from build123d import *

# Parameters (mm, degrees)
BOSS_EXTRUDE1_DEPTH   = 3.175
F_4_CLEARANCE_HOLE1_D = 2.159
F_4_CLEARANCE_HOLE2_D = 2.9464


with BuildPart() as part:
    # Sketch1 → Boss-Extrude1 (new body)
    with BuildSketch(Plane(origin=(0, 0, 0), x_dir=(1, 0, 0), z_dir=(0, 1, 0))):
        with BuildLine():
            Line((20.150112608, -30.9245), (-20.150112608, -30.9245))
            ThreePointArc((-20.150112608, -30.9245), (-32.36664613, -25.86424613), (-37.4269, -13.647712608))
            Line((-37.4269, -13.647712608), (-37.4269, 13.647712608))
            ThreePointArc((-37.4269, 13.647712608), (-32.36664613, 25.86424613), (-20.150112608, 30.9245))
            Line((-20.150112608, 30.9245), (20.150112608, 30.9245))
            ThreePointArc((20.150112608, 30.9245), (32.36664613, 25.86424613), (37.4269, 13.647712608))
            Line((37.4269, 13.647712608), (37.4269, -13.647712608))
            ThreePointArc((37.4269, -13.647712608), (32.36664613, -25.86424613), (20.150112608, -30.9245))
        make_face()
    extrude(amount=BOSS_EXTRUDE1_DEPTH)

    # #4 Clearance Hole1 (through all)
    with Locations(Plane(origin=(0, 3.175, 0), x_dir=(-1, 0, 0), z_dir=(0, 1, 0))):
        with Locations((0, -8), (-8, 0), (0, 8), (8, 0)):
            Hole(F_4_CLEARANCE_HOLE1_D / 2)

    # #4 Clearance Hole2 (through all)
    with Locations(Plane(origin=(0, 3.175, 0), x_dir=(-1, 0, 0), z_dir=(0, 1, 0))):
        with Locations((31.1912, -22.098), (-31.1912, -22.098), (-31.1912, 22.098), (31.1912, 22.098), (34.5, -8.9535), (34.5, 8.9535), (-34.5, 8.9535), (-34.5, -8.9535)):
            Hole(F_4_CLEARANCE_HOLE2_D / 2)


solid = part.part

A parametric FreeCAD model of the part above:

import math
import FreeCAD as App
import Part
import Sketcher
Q = App.Units.Quantity

doc = App.newDocument("Part")
body = doc.addObject("PartDesign::Body", "Body")

# Sketch on XZ plane
sketch1 = doc.addObject("Sketcher::SketchObject", "Sketch")
body.addObject(sketch1)
sketch1.AttachmentSupport = (doc.XZ_Plane, [""])
sketch1.MapMode = "FlatFace"
sketch1.addGeometry([
    Part.LineSegment(App.Vector(-20, 31, 0), App.Vector(20, 31, 0)),  # 0
    Part.ArcOfCircle(Part.Circle(App.Vector(20, 14, 0), App.Vector(0, 0, 1), 17), math.radians(0), math.radians(90)),  # 1
    Part.LineSegment(App.Vector(37, 14, 0), App.Vector(37, -14, 0)),  # 2
    Part.ArcOfCircle(Part.Circle(App.Vector(20, -14, 0), App.Vector(0, 0, 1), 17), math.radians(-90), math.radians(0)),  # 3
    Part.LineSegment(App.Vector(20, -31, 0), App.Vector(-20, -31, 0)),  # 4
    Part.ArcOfCircle(Part.Circle(App.Vector(-20, -14, 0), App.Vector(0, 0, 1), 17), math.radians(180), math.radians(270)),  # 5
    Part.LineSegment(App.Vector(-37, -14, 0), App.Vector(-37, 14, 0)),  # 6
    Part.ArcOfCircle(Part.Circle(App.Vector(-20, 14, 0), App.Vector(0, 0, 1), 17), math.radians(90), math.radians(180)),  # 7
], False)
sketch1.addConstraint([
    Sketcher.Constraint("Tangent", 0, 2, 1, 2),
    Sketcher.Constraint("Tangent", 1, 1, 2, 1),
    Sketcher.Constraint("Tangent", 2, 2, 3, 2),
    Sketcher.Constraint("Tangent", 3, 1, 4, 1),
    Sketcher.Constraint("Tangent", 4, 2, 5, 2),
    Sketcher.Constraint("Tangent", 5, 1, 6, 1),
    Sketcher.Constraint("Tangent", 6, 2, 7, 2),
    Sketcher.Constraint("Tangent", 7, 1, 0, 1),
    Sketcher.Constraint("Horizontal", 0),
    Sketcher.Constraint("Vertical", 2),
    Sketcher.Constraint("Horizontal", 4),
    Sketcher.Constraint("Vertical", 6),
    Sketcher.Constraint("Equal", 1, 3),
    Sketcher.Constraint("Equal", 3, 5),
    Sketcher.Constraint("Equal", 5, 7),
    Sketcher.Constraint("Symmetric", 1, 3, 5, 3, -1, 1),
    Sketcher.Constraint("DistanceY", -1, 1, 0, 2, Q("1.2175 in")),
    Sketcher.Constraint("DistanceX", -1, 1, 1, 1, Q("1.4735 in")),
    Sketcher.Constraint("Radius", 1, 17.276787),
])
pad1 = doc.addObject("PartDesign::Pad", "Pad")
body.addObject(pad1)
pad1.Profile = sketch1
pad1.Length = Q("0.125 in")
pad1.Reversed = True

# Sketch on XZ plane
sketch2 = doc.addObject("Sketcher::SketchObject", "Sketch001")
body.addObject(sketch2)
sketch2.AttachmentSupport = (doc.XZ_Plane, [""])
sketch2.MapMode = "FlatFace"
sketch2.AttachmentOffset = App.Placement(App.Vector(0, 0, -0.125 * 25.4), App.Rotation())
sketch2.addGeometry([
    Part.Circle(App.Vector(0, -8, 0), App.Vector(0, 0, 1), 1.1),
    Part.Circle(App.Vector(8, 0, 0), App.Vector(0, 0, 1), 1.1),
    Part.Circle(App.Vector(0, 8, 0), App.Vector(0, 0, 1), 1.1),
    Part.Circle(App.Vector(-8, 0, 0), App.Vector(0, 0, 1), 1.1),
], False)
sketch2.addConstraint([
    Sketcher.Constraint("Equal", 0, 1),
    Sketcher.Constraint("Equal", 1, 2),
    Sketcher.Constraint("Equal", 2, 3),
    Sketcher.Constraint("Symmetric", 0, 3, 2, 3, -1, 1),
    Sketcher.Constraint("Symmetric", 1, 3, 3, 3, -1, 1),
    Sketcher.Constraint("PointOnObject", 0, 3, -2),
    Sketcher.Constraint("PointOnObject", 1, 3, -1),
    Sketcher.Constraint("Diameter", 0, Q("0.085 in")),
    Sketcher.Constraint("DistanceY", 0, 3, -1, 1, 8.0),
    Sketcher.Constraint("DistanceX", -1, 1, 1, 3, 8.0),
])
doc.recompute()
hole = doc.addObject("PartDesign::Hole", "Hole")
body.addObject(hole)
hole.Profile = sketch2
hole.ThreadType = "None"
hole.Diameter = Q("0.085 in")
hole.DepthType = "ThroughAll"
hole.Reversed = True

# Sketch on XZ plane
sketch3 = doc.addObject("Sketcher::SketchObject", "Sketch002")
body.addObject(sketch3)
sketch3.AttachmentSupport = (doc.XZ_Plane, [""])
sketch3.MapMode = "FlatFace"
sketch3.AttachmentOffset = App.Placement(App.Vector(0, 0, -0.125 * 25.4), App.Rotation())
sketch3.addGeometry([
    Part.Circle(App.Vector(-31.2, -22.1, 0), App.Vector(0, 0, 1), 1.5),  # 0
    Part.Circle(App.Vector(31.2, -22.1, 0), App.Vector(0, 0, 1), 1.5),  # 1
    Part.Circle(App.Vector(31.2, 22.1, 0), App.Vector(0, 0, 1), 1.5),  # 2
    Part.Circle(App.Vector(-31.2, 22.1, 0), App.Vector(0, 0, 1), 1.5),  # 3
    Part.Circle(App.Vector(-34.5, -9, 0), App.Vector(0, 0, 1), 1.5),  # 4
    Part.Circle(App.Vector(-34.5, 9, 0), App.Vector(0, 0, 1), 1.5),  # 5
    Part.Circle(App.Vector(34.5, 9, 0), App.Vector(0, 0, 1), 1.5),  # 6
    Part.Circle(App.Vector(34.5, -9, 0), App.Vector(0, 0, 1), 1.5),  # 7
], False)
sketch3.addConstraint([
    Sketcher.Constraint("Equal", 0, 1),
    Sketcher.Constraint("Equal", 1, 2),
    Sketcher.Constraint("Equal", 2, 3),
    Sketcher.Constraint("Equal", 3, 4),
    Sketcher.Constraint("Equal", 4, 5),
    Sketcher.Constraint("Equal", 5, 6),
    Sketcher.Constraint("Equal", 6, 7),
    Sketcher.Constraint("Symmetric", 0, 3, 2, 3, -1, 1),
    Sketcher.Constraint("Symmetric", 1, 3, 3, 3, -1, 1),
    Sketcher.Constraint("Symmetric", 4, 3, 6, 3, -1, 1),
    Sketcher.Constraint("Symmetric", 5, 3, 7, 3, -1, 1),
    Sketcher.Constraint("Symmetric", 0, 3, 1, 3, -2),
    Sketcher.Constraint("Symmetric", 5, 3, 6, 3, -2),
    Sketcher.Constraint("Diameter", 0, Q("0.116 in")),
    Sketcher.Constraint("DistanceY", 0, 3, -1, 1, Q("0.87 in")),
    Sketcher.Constraint("DistanceX", 0, 3, -1, 1, Q("1.228 in")),
    Sketcher.Constraint("DistanceY", 4, 3, 5, 3, Q("0.705 in")),
    Sketcher.Constraint("DistanceX", 4, 3, -1, 1, 34.5),
])
doc.recompute()
hole2 = doc.addObject("PartDesign::Hole", "Hole001")
body.addObject(hole2)
hole2.Profile = sketch3
hole2.ThreadType = "None"
hole2.Diameter = Q("0.116 in")
hole2.DepthType = "ThroughAll"
hole2.Reversed = True

doc.recompute()
